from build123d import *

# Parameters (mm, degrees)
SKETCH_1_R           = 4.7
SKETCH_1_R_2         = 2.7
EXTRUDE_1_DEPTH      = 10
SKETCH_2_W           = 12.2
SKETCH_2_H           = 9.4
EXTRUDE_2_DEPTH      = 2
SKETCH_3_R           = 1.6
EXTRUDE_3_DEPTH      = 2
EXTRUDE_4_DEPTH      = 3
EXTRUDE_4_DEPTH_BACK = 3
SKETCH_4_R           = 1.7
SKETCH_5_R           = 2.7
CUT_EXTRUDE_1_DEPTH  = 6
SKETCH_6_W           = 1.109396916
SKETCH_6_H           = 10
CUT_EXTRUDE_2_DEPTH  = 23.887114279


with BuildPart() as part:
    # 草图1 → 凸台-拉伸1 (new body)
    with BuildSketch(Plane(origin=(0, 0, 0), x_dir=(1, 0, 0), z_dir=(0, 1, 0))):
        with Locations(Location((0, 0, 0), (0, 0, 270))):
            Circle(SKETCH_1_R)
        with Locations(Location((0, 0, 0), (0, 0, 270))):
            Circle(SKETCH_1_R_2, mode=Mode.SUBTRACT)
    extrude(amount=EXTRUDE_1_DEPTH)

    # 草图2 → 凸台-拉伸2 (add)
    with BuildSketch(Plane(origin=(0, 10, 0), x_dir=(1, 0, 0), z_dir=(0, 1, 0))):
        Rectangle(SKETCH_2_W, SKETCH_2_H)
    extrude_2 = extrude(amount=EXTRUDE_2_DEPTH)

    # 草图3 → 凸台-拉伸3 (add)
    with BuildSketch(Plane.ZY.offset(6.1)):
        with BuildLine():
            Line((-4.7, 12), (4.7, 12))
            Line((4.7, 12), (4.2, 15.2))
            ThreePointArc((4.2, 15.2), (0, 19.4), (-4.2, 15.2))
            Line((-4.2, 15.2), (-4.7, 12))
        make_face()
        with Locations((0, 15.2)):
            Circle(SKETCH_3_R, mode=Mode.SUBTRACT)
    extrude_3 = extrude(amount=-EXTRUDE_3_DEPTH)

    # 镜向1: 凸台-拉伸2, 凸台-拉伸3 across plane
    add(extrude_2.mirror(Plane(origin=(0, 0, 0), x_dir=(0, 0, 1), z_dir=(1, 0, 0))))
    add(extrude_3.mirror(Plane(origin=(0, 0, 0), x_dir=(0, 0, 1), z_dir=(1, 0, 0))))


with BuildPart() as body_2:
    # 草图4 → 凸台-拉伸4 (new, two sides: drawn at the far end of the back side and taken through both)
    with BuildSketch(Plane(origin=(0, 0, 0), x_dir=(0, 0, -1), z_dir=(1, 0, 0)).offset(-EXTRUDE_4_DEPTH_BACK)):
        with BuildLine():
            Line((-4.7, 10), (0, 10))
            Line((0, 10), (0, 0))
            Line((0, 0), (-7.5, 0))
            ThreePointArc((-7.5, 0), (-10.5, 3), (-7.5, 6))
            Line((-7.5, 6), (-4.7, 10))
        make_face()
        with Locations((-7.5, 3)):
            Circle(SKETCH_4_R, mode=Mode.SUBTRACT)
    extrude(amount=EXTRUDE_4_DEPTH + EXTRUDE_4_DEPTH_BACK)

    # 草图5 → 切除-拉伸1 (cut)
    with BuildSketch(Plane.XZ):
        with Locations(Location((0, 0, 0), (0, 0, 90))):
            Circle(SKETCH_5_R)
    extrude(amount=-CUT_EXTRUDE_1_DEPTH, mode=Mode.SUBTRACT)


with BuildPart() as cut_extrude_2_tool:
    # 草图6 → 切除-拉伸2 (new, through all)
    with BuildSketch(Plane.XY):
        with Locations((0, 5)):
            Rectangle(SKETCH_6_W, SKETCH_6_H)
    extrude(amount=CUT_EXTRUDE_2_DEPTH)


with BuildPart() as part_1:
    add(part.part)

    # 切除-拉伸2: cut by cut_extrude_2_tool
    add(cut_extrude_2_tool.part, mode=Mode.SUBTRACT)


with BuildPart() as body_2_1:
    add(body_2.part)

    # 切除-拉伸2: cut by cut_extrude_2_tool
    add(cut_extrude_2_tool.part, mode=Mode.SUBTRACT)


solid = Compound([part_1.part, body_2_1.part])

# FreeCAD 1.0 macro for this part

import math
import FreeCAD as App
import Part
import Sketcher

V = App.Vector
Q = App.Units.Quantity

doc = App.newDocument("Part")
params = doc.addObject("Spreadsheet::Sheet", "Params")
for row, (alias, value) in enumerate([
    ("sketch1_diameter", "9.4 mm"),
    ("sketch1_diameter2", "5.4 mm"),
    ("pad1_length", "10 mm"),
    ("sketch2_width", "12.2 mm"),
    ("sketch2_height", "9.4 mm"),
    ("pad2_length", "2 mm"),
    ("sketch3_diameter", "3.2 mm"),
    ("sketch3_radius", "4.2 mm"),
    ("sketch3_height", "9.4 mm"),
    ("pad3_length", "2 mm"),
    ("sketch4_radius", "3 mm"),
    ("sketch4_diameter", "3.4 mm"),
    ("sketch4_width", "10 mm"),
    ("sketch4_height", "4.7 mm"),
    ("sketch4_height2", "7.5 mm"),
    ("pad4_length", "3 mm"),
    ("pad4_length2", "3 mm"),
    ("sketch5_diameter", "5.4 mm"),
    ("pocket1_length", "6 mm"),
    ("sketch6_height", "10 mm"),
    ("pad5_length", "23.887114 mm"),
], start=1):
    params.set(f"A{row}", alias)
    params.set(f"B{row}", "=" + value)
    params.setAlias(f"B{row}", alias)

body = doc.addObject("PartDesign::Body", "Body")

# Sketch on XZ plane
sketch1 = body.newObject("Sketcher::SketchObject", "Sketch")
sketch1.AttachmentSupport = (doc.getObject("XZ_Plane"), [""])
sketch1.MapMode = "FlatFace"
sketch1.addGeometry([
    Part.Circle(V(0, 0, 0), V(0, 0, 1), 4.7),
    Part.Circle(V(0, 0, 0), V(0, 0, 1), 2.7),
], False)
sketch1.addConstraint([
    Sketcher.Constraint("Coincident", 0, 3, -1, 1),
    Sketcher.Constraint("Coincident", 1, 3, -1, 1),
    Sketcher.Constraint("Diameter", 0, Q("9.4 mm")),
    Sketcher.Constraint("Diameter", 1, Q("5.4 mm")),
])
sketch1.setExpression("Constraints[2]", "Params.sketch1_diameter")
sketch1.setExpression("Constraints[3]", "Params.sketch1_diameter2")
pad1 = body.newObject("PartDesign::Pad", "Pad")
pad1.Profile = sketch1
pad1.setExpression("Length", "Params.pad1_length")
pad1.Reversed = True

# Sketch on XZ plane
sketch2 = body.newObject("Sketcher::SketchObject", "Sketch001")
sketch2.AttachmentSupport = (doc.getObject("XZ_Plane"), [""])
sketch2.MapMode = "FlatFace"
sketch2.AttachmentOffset = App.Placement(V(0, 0, -10), App.Rotation())
sketch2.addGeometry([
    Part.LineSegment(V(-6, -5, 0), V(-6, 5, 0)),
    Part.LineSegment(V(-6, 5, 0), V(6, 5, 0)),
    Part.LineSegment(V(6, 5, 0), V(6, -5, 0)),
    Part.LineSegment(V(6, -5, 0), V(-6, -5, 0)),
], False)
sketch2.addConstraint([
    Sketcher.Constraint("Coincident", 0, 2, 1, 1),
    Sketcher.Constraint("Coincident", 1, 2, 2, 1),
    Sketcher.Constraint("Coincident", 2, 2, 3, 1),
    Sketcher.Constraint("Coincident", 3, 2, 0, 1),
    Sketcher.Constraint("Vertical", 0),
    Sketcher.Constraint("Horizontal", 1),
    Sketcher.Constraint("Vertical", 2),
    Sketcher.Constraint("Horizontal", 3),
    Sketcher.Constraint("Symmetric", 0, 2, 2, 2, -1, 1),
    Sketcher.Constraint("DistanceX", 1, 1, 1, 2, Q("12.2 mm")),
    Sketcher.Constraint("DistanceY", 0, 1, 0, 2, Q("9.4 mm")),
])
sketch2.setExpression("Constraints[9]", "Params.sketch2_width")
sketch2.setExpression("Constraints[10]", "Params.sketch2_height")
pad2 = body.newObject("PartDesign::Pad", "Pad001")
pad2.Profile = sketch2
pad2.setExpression("Length", "Params.pad2_length")
pad2.Reversed = True

# Sketch on YZ plane
sketch3 = body.newObject("Sketcher::SketchObject", "Sketch002")
sketch3.AttachmentSupport = (doc.getObject("YZ_Plane"), [""])
sketch3.MapMode = "FlatFace"
sketch3.AttachmentOffset = App.Placement(V(0, 0, -6.1), App.Rotation())
sketch3.addGeometry([
    Part.LineSegment(V(12, -4.7, 0), V(12, 4.7, 0)),  # 0
    Part.LineSegment(V(12, 4.7, 0), V(15.2, 4.2, 0)),  # 1
    Part.ArcOfCircle(Part.Circle(V(15.2, 0, 0), V(0, 0, 1), 4.2), math.radians(-90), math.radians(90)),  # 2
    Part.LineSegment(V(15.2, -4.2, 0), V(12, -4.7, 0)),  # 3
    Part.Circle(V(15.2, 0, 0), V(0, 0, 1), 1.6),  # 4
], False)
sketch3.addConstraint([
    Sketcher.Constraint("Coincident", 0, 2, 1, 1),
    Sketcher.Constraint("Coincident", 1, 2, 2, 2),
    Sketcher.Constraint("Coincident", 2, 1, 3, 1),
    Sketcher.Constraint("Coincident", 3, 2, 0, 1),
    Sketcher.Constraint("Vertical", 0),
    Sketcher.Constraint("Coincident", 4, 3, 2, 3),
    Sketcher.Constraint("Symmetric", 1, 2, 2, 1, -1),
    Sketcher.Constraint("Vertical", 4, 3, 1, 2),
    Sketcher.Constraint("Equal", 1, 3),
    Sketcher.Constraint("Diameter", 4, Q("3.2 mm")),
    Sketcher.Constraint("Radius", 2, Q("4.2 mm")),
    Sketcher.Constraint("DistanceY", 0, 1, 0, 2, Q("9.4 mm")),
    Sketcher.Constraint("DistanceX", -1, 1, 0, 2, Q("12 mm")),
    Sketcher.Constraint("DistanceX", -1, 1, 2, 3, Q("15.2 mm")),
])
sketch3.setExpression("Constraints[9]", "Params.sketch3_diameter")
sketch3.setExpression("Constraints[10]", "Params.sketch3_radius")
sketch3.setExpression("Constraints[11]", "Params.sketch3_height")
pad3 = body.newObject("PartDesign::Pad", "Pad002")
pad3.Profile = sketch3
pad3.setExpression("Length", "Params.pad3_length")
doc.recompute()

mirrored = body.newObject("PartDesign::Mirrored", "Mirrored")
mirrored.Originals = [pad2, pad3]
mirrored.MirrorPlane = (doc.getObject("YZ_Plane"), [""])
body.Tip = mirrored
body2 = doc.addObject("PartDesign::Body", "Body001")

# Sketch on YZ plane
sketch4 = body2.newObject("Sketcher::SketchObject", "Sketch003")
sketch4.AttachmentSupport = (doc.getObject("YZ_Plane001"), [""])
sketch4.MapMode = "FlatFace"
sketch4.addGeometry([
    Part.LineSegment(V(10, 0, 0), V(10, 4.7, 0)),  # 0
    Part.LineSegment(V(10, 4.7, 0), V(6, 7.5, 0)),  # 1
    Part.ArcOfCircle(Part.Circle(V(3, 7.5, 0), V(0, 0, 1), 3), math.radians(0), math.radians(180)),  # 2
    Part.LineSegment(V(0, 7.5, 0), V(0, 0, 0)),  # 3
    Part.LineSegment(V(0, 0, 0), V(10, 0, 0)),  # 4
    Part.Circle(V(3, 7.5, 0), V(0, 0, 1), 1.7),  # 5
], False)
sketch4.addConstraint([
    Sketcher.Constraint("Coincident", 0, 2, 1, 1),
    Sketcher.Constraint("Coincident", 1, 2, 2, 1),
    Sketcher.Constraint("Tangent", 2, 2, 3, 1),
    Sketcher.Constraint("Coincident", 3, 2, 4, 1),
    Sketcher.Constraint("Coincident", 4, 2, 0, 1),
    Sketcher.Constraint("Vertical", 0),
    Sketcher.Constraint("Vertical", 3),
    Sketcher.Constraint("Horizontal", 4),
    Sketcher.Constraint("Coincident", 3, 2, -1, 1),
    Sketcher.Constraint("Coincident", 5, 3, 2, 3),
    Sketcher.Constraint("Horizontal", 5, 3, 1, 2),
    Sketcher.Constraint("Radius", 2, Q("3 mm")),
    Sketcher.Constraint("Diameter", 5, Q("3.4 mm")),
    Sketcher.Constraint("DistanceX", 4, 1, 4, 2, Q("10 mm")),
    Sketcher.Constraint("DistanceY", 0, 1, 0, 2, Q("4.7 mm")),
    Sketcher.Constraint("DistanceY", 3, 2, 3, 1, Q("7.5 mm")),
])
sketch4.setExpression("Constraints[11]", "Params.sketch4_radius")
sketch4.setExpression("Constraints[12]", "Params.sketch4_diameter")
sketch4.setExpression("Constraints[13]", "Params.sketch4_width")
sketch4.setExpression("Constraints[14]", "Params.sketch4_height")
sketch4.setExpression("Constraints[15]", "Params.sketch4_height2")
pad4 = body2.newObject("PartDesign::Pad", "Pad003")
pad4.Profile = sketch4
pad4.Type = "TwoLengths"
pad4.setExpression("Length", "Params.pad4_length")
pad4.setExpression("Length2", "Params.pad4_length2")

# Sketch on XZ plane
sketch5 = body2.newObject("Sketcher::SketchObject", "Sketch004")
sketch5.AttachmentSupport = (doc.getObject("XZ_Plane001"), [""])
sketch5.MapMode = "FlatFace"
sketch5.addGeometry(Part.Circle(V(0, 0, 0), V(0, 0, 1), 2.7), False)
sketch5.addConstraint([
    Sketcher.Constraint("Coincident", 0, 3, -1, 1),
    Sketcher.Constraint("Diameter", 0, Q("5.4 mm")),
])
sketch5.setExpression("Constraints[1]", "Params.sketch5_diameter")
pocket1 = body2.newObject("PartDesign::Pocket", "Pocket")
pocket1.Profile = sketch5
pocket1.setExpression("Length", "Params.pocket1_length")
body3 = doc.addObject("PartDesign::Body", "Body002")

# Sketch on XY plane
sketch6 = body3.newObject("Sketcher::SketchObject", "Sketch005")
sketch6.AttachmentSupport = (doc.getObject("XY_Plane002"), [""])
sketch6.MapMode = "FlatFace"
sketch6.addGeometry([
    Part.LineSegment(V(-0.6, 10, 0), V(-0.6, 0, 0)),
    Part.LineSegment(V(-0.6, 0, 0), V(0.6, 0, 0)),
    Part.LineSegment(V(0.6, 0, 0), V(0.6, 10, 0)),
    Part.LineSegment(V(0.6, 10, 0), V(-0.6, 10, 0)),
], False)
sketch6.addConstraint([
    Sketcher.Constraint("Coincident", 0, 2, 1, 1),
    Sketcher.Constraint("Coincident", 1, 2, 2, 1),
    Sketcher.Constraint("Coincident", 2, 2, 3, 1),
    Sketcher.Constraint("Coincident", 3, 2, 0, 1),
    Sketcher.Constraint("Vertical", 0),
    Sketcher.Constraint("Horizontal", 1),
    Sketcher.Constraint("Vertical", 2),
    Sketcher.Constraint("Horizontal", 3),
    Sketcher.Constraint("Symmetric", 0, 2, 1, 2, -1, 1),
    Sketcher.Constraint("DistanceY", 0, 2, 0, 1, Q("10 mm")),
    Sketcher.Constraint("DistanceX", 0, 2, -1, 1, Q("0.554698 mm")),
])
sketch6.setExpression("Constraints[9]", "Params.sketch6_height")
pad5 = body3.newObject("PartDesign::Pad", "Pad004")
pad5.Profile = sketch6
pad5.setExpression("Length", "Params.pad5_length")
doc.recompute()

body4 = doc.addObject("PartDesign::Body", "Body003")
body4.BaseFeature = body3
boolean = body.newObject("PartDesign::Boolean", "Boolean")
boolean.Type = "Cut"
boolean.addObjects([body4])
doc.recompute()
body2.AllowCompound = True
doc.recompute()

boolean2 = body2.newObject("PartDesign::Boolean", "Boolean001")
boolean2.Type = "Cut"
boolean2.addObjects([body3])

doc.recompute()
